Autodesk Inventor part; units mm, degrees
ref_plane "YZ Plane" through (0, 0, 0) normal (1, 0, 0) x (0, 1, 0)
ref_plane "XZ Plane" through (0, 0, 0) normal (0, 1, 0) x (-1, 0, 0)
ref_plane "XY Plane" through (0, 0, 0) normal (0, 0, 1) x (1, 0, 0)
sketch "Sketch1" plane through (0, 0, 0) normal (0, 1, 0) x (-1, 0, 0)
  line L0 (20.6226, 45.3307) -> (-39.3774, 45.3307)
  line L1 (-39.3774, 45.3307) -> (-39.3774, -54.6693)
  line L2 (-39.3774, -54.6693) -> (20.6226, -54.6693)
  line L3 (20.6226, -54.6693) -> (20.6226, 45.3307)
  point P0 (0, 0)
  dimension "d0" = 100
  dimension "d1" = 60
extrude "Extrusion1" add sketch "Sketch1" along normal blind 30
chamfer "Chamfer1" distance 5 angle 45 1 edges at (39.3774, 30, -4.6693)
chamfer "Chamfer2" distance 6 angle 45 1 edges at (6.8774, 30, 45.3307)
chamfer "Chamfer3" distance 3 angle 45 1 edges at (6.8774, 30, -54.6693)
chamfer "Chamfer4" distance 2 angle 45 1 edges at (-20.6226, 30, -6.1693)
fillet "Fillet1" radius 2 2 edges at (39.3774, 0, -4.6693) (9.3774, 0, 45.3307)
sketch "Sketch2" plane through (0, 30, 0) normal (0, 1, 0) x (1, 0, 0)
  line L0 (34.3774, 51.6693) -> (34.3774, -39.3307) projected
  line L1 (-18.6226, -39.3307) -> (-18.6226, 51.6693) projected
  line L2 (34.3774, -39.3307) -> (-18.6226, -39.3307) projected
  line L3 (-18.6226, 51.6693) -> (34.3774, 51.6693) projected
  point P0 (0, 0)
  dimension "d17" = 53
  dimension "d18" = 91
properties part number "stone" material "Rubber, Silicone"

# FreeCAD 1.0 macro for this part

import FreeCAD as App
import Part
import Sketcher


def edges_at(feature, points):
    """Names of the edges that pass closest to the given points."""
    edges = feature.Shape.Edges
    near = lambda p: min(range(len(edges)), key=lambda i: edges[i].distToShape(Part.Vertex(*p))[0])
    return sorted({f"Edge{near(p) + 1}" for p in points})


def add_polygon(sketch, points):
    """Adds a closed chain of lines whose ends are joined by coincident constraints."""
    first, n = sketch.GeometryCount, len(points)
    for a, b in zip(points, points[1:] + points[:1]):
        sketch.addGeometry(Part.LineSegment(App.Vector(*a, 0), App.Vector(*b, 0)), False)
    for i in range(n):
        sketch.addConstraint(Sketcher.Constraint("Coincident", first + i, 2, first + (i + 1) % n, 1))

doc = App.newDocument("Part")
body = doc.addObject("PartDesign::Body", "Body")

sketch1 = body.newObject("Sketcher::SketchObject", "Sketch")
sketch1.AttachmentSupport = (doc.getObject("XZ_Plane"), [""])
sketch1.MapMode = "FlatFace"
add_polygon(sketch1, [(-21, -55), (-21, 45), (39, 45), (39, -55)])
sketch1.addConstraint(Sketcher.Constraint("Vertical", 0))
sketch1.addConstraint(Sketcher.Constraint("Horizontal", 1))
sketch1.addConstraint(Sketcher.Constraint("Vertical", 2))
sketch1.addConstraint(Sketcher.Constraint("Horizontal", 3))
sketch1.addConstraint(Sketcher.Constraint("DistanceX", 1, 1, 1, 2, 60.0))
sketch1.addConstraint(Sketcher.Constraint("DistanceY", 0, 1, 0, 2, 100.0))
sketch1.addConstraint(Sketcher.Constraint("DistanceX", 0, 2, -1, 1, 20.6226))
sketch1.addConstraint(Sketcher.Constraint("DistanceY", -1, 1, 0, 2, 45.3307))
pad1 = body.newObject("PartDesign::Pad", "Pad")
pad1.Profile = sketch1
pad1.Length = 30
pad1.Reversed = True
doc.recompute()

chamfer = body.newObject("PartDesign::Chamfer", "Chamfer")
chamfer.Base = (pad1, edges_at(pad1, [(39.377, 30, -4.669)]))
chamfer.Size = 5
doc.recompute()

chamfer2 = body.newObject("PartDesign::Chamfer", "Chamfer001")
chamfer2.Base = (chamfer, edges_at(chamfer, [(6.877, 30, 45.331)]))
chamfer2.Size = 6
doc.recompute()

chamfer3 = body.newObject("PartDesign::Chamfer", "Chamfer002")
chamfer3.Base = (chamfer2, edges_at(chamfer2, [(6.877, 30, -54.669)]))
chamfer3.Size = 3
doc.recompute()

chamfer4 = body.newObject("PartDesign::Chamfer", "Chamfer003")
chamfer4.Base = (chamfer3, edges_at(chamfer3, [(-20.623, 30, -6.169)]))
chamfer4.Size = 2
doc.recompute()

fillet = body.newObject("PartDesign::Fillet", "Fillet")
fillet.Base = (chamfer4, edges_at(chamfer4, [(39.377, 0, -4.669), (9.377, 0, 45.331)]))
fillet.Radius = 2

doc.recompute()
